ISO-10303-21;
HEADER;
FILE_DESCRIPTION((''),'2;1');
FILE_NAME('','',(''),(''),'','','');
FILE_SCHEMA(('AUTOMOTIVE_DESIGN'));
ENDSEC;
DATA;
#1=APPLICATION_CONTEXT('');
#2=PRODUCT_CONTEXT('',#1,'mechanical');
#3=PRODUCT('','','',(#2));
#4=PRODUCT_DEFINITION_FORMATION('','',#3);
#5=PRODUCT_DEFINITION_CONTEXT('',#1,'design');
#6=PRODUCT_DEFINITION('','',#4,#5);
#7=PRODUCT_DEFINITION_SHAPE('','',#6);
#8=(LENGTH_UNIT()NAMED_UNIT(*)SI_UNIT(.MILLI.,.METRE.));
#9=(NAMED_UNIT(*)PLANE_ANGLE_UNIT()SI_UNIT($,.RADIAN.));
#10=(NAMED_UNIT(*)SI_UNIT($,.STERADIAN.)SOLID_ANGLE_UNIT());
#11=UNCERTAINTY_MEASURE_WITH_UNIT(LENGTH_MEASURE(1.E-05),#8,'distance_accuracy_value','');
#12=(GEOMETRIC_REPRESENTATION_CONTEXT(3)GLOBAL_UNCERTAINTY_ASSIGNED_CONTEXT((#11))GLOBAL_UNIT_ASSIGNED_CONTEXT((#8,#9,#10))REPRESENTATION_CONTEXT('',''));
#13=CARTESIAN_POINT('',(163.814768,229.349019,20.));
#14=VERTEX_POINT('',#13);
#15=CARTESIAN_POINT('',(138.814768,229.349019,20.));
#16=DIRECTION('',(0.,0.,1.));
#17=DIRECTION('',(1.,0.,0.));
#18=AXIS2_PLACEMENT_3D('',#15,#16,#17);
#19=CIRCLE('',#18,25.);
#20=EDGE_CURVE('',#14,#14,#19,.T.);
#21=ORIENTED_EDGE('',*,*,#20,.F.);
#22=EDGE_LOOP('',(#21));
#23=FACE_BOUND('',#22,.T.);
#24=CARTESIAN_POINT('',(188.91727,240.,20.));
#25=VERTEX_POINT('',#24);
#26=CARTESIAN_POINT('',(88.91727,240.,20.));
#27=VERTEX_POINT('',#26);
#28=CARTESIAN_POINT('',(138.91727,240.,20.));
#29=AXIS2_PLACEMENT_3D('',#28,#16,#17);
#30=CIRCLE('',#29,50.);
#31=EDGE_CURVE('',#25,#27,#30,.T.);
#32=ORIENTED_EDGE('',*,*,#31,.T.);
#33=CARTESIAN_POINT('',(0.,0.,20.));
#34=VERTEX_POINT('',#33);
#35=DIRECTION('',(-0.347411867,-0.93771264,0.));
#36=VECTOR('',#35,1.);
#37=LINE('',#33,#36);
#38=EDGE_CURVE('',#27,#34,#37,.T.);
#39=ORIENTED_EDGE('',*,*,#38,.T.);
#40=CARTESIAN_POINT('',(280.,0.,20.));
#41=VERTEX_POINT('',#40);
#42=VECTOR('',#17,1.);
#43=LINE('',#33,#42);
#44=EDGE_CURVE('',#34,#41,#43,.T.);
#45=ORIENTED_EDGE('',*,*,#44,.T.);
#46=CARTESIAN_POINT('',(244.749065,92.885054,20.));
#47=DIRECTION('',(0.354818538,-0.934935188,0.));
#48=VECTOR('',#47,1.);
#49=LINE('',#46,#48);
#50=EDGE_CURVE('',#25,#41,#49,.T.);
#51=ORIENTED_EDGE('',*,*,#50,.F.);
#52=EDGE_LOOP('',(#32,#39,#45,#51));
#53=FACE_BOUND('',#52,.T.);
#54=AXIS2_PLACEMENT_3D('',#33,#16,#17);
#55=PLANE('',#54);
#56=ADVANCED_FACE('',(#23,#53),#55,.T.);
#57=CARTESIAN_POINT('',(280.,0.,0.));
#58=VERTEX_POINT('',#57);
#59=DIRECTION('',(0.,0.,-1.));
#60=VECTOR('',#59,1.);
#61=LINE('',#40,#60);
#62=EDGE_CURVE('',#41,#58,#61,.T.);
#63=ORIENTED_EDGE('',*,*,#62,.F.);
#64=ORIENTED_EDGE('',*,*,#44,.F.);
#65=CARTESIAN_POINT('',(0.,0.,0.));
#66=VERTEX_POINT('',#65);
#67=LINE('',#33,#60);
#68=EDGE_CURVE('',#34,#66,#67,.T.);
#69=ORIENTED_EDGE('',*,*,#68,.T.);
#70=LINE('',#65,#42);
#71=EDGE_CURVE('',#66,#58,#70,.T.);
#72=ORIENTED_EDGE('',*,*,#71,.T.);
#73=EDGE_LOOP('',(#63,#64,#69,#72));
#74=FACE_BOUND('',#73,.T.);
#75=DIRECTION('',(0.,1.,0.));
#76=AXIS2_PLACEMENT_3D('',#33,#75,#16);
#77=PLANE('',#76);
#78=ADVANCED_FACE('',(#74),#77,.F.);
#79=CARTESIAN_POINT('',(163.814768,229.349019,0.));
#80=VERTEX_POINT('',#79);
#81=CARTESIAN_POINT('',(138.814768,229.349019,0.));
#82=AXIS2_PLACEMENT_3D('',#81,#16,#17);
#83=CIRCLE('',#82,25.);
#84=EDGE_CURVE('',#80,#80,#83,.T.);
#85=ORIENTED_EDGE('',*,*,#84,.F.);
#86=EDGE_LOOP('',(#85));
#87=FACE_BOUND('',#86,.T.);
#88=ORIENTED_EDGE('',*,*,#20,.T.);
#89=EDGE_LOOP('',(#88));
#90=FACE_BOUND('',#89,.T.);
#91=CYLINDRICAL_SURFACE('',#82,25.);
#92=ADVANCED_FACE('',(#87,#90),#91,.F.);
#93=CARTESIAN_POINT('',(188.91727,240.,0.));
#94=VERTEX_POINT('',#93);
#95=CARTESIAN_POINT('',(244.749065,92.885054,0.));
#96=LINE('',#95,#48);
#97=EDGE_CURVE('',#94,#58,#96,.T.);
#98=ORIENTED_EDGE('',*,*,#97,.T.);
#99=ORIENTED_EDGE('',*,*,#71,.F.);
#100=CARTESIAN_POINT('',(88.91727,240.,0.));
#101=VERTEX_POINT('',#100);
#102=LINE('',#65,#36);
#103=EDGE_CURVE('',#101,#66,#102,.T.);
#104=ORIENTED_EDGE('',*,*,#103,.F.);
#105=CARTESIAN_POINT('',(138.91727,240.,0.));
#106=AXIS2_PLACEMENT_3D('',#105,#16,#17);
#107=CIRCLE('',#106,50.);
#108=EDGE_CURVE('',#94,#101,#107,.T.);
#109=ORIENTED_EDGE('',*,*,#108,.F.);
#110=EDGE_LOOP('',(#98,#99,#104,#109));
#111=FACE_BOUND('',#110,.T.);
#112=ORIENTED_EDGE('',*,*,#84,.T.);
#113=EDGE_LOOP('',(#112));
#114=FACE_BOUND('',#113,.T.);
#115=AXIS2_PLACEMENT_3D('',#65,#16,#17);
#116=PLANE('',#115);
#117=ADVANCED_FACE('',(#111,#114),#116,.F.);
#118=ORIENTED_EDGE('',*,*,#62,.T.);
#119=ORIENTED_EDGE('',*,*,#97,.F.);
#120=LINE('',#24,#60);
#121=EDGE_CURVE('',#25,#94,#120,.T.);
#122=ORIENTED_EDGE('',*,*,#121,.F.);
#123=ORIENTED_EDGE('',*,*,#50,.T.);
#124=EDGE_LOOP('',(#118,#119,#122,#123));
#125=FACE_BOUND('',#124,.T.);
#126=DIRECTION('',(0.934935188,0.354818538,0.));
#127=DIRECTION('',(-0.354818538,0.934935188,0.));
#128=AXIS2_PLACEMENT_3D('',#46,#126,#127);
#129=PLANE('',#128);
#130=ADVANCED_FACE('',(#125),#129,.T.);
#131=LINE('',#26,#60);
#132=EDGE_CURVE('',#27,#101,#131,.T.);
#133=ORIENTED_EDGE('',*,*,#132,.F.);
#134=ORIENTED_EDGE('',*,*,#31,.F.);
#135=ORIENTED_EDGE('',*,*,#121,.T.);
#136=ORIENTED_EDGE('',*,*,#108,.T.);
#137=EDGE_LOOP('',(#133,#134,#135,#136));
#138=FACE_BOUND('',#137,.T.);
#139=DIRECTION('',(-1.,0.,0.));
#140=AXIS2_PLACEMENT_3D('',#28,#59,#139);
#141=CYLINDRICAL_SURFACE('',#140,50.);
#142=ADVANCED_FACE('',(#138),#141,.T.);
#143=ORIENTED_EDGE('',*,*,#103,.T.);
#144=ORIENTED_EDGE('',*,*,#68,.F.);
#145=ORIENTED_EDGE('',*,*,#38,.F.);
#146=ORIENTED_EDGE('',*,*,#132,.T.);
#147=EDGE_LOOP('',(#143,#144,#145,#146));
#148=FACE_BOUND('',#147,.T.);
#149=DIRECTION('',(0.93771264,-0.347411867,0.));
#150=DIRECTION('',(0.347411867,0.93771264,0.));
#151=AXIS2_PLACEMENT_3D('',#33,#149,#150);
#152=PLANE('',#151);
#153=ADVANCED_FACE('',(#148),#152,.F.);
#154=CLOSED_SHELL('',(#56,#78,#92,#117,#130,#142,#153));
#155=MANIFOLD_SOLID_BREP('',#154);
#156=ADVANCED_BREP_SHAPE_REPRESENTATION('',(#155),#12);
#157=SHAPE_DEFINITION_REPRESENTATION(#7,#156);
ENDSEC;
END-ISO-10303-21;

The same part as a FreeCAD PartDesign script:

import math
import FreeCAD as App
import Part
import Sketcher
Q = App.Units.Quantity

doc = App.newDocument("Part")
body = doc.addObject("PartDesign::Body", "Body")

sketch1 = body.newObject("Sketcher::SketchObject", "Sketch")
sketch1.AttachmentSupport = (doc.getObject("XY_Plane"), [""])
sketch1.MapMode = "FlatFace"
sketch1.addGeometry([
    Part.LineSegment(App.Vector(88.91727, 240, 0), App.Vector(0, 0, 0)),
    Part.LineSegment(App.Vector(0, 0, 0), App.Vector(280, 0, 0)),
    Part.LineSegment(App.Vector(280, 0, 0), App.Vector(188.91727, 240, 0)),
    Part.ArcOfCircle(Part.Circle(App.Vector(138.91727, 240, 0), App.Vector(0, 0, 1), 50), math.radians(0), math.radians(180)),
], False)
sketch1.addConstraint([
    Sketcher.Constraint("Coincident", 0, 2, 1, 1),
    Sketcher.Constraint("Coincident", 1, 2, 2, 1),
    Sketcher.Constraint("Coincident", 2, 2, 3, 1),
    Sketcher.Constraint("Coincident", 3, 2, 0, 1),
    Sketcher.Constraint("Horizontal", 1),
    Sketcher.Constraint("Coincident", 0, 2, -1, 1),
    Sketcher.Constraint("Horizontal", 3, 3, 2, 2),
    Sketcher.Constraint("Horizontal", 2, 2, 3, 2),
    Sketcher.Constraint("Radius", 3, Q("50 mm")),
    Sketcher.Constraint("DistanceX", 1, 1, 1, 2, Q("280 mm")),
    Sketcher.Constraint("DistanceY", -1, 1, 3, 3, Q("240 mm")),
    Sketcher.Constraint("Distance", 0, Q("255.941948 mm")),
])
pad1 = body.newObject("PartDesign::Pad", "Pad")
pad1.Profile = sketch1
pad1.Length = 20

sketch2 = body.newObject("Sketcher::SketchObject", "Sketch001")
sketch2.AttachmentSupport = (doc.getObject("XY_Plane"), [""])
sketch2.MapMode = "FlatFace"
sketch2.AttachmentOffset = App.Placement(App.Vector(0, 0, 20), App.Rotation())
sketch2.addGeometry(Part.Circle(App.Vector(138.814768, 229.349019, 0), App.Vector(0, 0, 1), 25), False)
sketch2.addConstraint([
    Sketcher.Constraint("Diameter", 0, Q("50 mm")),
    Sketcher.Constraint("DistanceY", -1, 1, 0, 3, Q("229.349019 mm")),
    Sketcher.Constraint("DistanceX", -1, 1, 0, 3, Q("138.814768 mm")),
])
pocket1 = body.newObject("PartDesign::Pocket", "Pocket")
pocket1.Profile = sketch2
pocket1.Length = 20

doc.recompute()
